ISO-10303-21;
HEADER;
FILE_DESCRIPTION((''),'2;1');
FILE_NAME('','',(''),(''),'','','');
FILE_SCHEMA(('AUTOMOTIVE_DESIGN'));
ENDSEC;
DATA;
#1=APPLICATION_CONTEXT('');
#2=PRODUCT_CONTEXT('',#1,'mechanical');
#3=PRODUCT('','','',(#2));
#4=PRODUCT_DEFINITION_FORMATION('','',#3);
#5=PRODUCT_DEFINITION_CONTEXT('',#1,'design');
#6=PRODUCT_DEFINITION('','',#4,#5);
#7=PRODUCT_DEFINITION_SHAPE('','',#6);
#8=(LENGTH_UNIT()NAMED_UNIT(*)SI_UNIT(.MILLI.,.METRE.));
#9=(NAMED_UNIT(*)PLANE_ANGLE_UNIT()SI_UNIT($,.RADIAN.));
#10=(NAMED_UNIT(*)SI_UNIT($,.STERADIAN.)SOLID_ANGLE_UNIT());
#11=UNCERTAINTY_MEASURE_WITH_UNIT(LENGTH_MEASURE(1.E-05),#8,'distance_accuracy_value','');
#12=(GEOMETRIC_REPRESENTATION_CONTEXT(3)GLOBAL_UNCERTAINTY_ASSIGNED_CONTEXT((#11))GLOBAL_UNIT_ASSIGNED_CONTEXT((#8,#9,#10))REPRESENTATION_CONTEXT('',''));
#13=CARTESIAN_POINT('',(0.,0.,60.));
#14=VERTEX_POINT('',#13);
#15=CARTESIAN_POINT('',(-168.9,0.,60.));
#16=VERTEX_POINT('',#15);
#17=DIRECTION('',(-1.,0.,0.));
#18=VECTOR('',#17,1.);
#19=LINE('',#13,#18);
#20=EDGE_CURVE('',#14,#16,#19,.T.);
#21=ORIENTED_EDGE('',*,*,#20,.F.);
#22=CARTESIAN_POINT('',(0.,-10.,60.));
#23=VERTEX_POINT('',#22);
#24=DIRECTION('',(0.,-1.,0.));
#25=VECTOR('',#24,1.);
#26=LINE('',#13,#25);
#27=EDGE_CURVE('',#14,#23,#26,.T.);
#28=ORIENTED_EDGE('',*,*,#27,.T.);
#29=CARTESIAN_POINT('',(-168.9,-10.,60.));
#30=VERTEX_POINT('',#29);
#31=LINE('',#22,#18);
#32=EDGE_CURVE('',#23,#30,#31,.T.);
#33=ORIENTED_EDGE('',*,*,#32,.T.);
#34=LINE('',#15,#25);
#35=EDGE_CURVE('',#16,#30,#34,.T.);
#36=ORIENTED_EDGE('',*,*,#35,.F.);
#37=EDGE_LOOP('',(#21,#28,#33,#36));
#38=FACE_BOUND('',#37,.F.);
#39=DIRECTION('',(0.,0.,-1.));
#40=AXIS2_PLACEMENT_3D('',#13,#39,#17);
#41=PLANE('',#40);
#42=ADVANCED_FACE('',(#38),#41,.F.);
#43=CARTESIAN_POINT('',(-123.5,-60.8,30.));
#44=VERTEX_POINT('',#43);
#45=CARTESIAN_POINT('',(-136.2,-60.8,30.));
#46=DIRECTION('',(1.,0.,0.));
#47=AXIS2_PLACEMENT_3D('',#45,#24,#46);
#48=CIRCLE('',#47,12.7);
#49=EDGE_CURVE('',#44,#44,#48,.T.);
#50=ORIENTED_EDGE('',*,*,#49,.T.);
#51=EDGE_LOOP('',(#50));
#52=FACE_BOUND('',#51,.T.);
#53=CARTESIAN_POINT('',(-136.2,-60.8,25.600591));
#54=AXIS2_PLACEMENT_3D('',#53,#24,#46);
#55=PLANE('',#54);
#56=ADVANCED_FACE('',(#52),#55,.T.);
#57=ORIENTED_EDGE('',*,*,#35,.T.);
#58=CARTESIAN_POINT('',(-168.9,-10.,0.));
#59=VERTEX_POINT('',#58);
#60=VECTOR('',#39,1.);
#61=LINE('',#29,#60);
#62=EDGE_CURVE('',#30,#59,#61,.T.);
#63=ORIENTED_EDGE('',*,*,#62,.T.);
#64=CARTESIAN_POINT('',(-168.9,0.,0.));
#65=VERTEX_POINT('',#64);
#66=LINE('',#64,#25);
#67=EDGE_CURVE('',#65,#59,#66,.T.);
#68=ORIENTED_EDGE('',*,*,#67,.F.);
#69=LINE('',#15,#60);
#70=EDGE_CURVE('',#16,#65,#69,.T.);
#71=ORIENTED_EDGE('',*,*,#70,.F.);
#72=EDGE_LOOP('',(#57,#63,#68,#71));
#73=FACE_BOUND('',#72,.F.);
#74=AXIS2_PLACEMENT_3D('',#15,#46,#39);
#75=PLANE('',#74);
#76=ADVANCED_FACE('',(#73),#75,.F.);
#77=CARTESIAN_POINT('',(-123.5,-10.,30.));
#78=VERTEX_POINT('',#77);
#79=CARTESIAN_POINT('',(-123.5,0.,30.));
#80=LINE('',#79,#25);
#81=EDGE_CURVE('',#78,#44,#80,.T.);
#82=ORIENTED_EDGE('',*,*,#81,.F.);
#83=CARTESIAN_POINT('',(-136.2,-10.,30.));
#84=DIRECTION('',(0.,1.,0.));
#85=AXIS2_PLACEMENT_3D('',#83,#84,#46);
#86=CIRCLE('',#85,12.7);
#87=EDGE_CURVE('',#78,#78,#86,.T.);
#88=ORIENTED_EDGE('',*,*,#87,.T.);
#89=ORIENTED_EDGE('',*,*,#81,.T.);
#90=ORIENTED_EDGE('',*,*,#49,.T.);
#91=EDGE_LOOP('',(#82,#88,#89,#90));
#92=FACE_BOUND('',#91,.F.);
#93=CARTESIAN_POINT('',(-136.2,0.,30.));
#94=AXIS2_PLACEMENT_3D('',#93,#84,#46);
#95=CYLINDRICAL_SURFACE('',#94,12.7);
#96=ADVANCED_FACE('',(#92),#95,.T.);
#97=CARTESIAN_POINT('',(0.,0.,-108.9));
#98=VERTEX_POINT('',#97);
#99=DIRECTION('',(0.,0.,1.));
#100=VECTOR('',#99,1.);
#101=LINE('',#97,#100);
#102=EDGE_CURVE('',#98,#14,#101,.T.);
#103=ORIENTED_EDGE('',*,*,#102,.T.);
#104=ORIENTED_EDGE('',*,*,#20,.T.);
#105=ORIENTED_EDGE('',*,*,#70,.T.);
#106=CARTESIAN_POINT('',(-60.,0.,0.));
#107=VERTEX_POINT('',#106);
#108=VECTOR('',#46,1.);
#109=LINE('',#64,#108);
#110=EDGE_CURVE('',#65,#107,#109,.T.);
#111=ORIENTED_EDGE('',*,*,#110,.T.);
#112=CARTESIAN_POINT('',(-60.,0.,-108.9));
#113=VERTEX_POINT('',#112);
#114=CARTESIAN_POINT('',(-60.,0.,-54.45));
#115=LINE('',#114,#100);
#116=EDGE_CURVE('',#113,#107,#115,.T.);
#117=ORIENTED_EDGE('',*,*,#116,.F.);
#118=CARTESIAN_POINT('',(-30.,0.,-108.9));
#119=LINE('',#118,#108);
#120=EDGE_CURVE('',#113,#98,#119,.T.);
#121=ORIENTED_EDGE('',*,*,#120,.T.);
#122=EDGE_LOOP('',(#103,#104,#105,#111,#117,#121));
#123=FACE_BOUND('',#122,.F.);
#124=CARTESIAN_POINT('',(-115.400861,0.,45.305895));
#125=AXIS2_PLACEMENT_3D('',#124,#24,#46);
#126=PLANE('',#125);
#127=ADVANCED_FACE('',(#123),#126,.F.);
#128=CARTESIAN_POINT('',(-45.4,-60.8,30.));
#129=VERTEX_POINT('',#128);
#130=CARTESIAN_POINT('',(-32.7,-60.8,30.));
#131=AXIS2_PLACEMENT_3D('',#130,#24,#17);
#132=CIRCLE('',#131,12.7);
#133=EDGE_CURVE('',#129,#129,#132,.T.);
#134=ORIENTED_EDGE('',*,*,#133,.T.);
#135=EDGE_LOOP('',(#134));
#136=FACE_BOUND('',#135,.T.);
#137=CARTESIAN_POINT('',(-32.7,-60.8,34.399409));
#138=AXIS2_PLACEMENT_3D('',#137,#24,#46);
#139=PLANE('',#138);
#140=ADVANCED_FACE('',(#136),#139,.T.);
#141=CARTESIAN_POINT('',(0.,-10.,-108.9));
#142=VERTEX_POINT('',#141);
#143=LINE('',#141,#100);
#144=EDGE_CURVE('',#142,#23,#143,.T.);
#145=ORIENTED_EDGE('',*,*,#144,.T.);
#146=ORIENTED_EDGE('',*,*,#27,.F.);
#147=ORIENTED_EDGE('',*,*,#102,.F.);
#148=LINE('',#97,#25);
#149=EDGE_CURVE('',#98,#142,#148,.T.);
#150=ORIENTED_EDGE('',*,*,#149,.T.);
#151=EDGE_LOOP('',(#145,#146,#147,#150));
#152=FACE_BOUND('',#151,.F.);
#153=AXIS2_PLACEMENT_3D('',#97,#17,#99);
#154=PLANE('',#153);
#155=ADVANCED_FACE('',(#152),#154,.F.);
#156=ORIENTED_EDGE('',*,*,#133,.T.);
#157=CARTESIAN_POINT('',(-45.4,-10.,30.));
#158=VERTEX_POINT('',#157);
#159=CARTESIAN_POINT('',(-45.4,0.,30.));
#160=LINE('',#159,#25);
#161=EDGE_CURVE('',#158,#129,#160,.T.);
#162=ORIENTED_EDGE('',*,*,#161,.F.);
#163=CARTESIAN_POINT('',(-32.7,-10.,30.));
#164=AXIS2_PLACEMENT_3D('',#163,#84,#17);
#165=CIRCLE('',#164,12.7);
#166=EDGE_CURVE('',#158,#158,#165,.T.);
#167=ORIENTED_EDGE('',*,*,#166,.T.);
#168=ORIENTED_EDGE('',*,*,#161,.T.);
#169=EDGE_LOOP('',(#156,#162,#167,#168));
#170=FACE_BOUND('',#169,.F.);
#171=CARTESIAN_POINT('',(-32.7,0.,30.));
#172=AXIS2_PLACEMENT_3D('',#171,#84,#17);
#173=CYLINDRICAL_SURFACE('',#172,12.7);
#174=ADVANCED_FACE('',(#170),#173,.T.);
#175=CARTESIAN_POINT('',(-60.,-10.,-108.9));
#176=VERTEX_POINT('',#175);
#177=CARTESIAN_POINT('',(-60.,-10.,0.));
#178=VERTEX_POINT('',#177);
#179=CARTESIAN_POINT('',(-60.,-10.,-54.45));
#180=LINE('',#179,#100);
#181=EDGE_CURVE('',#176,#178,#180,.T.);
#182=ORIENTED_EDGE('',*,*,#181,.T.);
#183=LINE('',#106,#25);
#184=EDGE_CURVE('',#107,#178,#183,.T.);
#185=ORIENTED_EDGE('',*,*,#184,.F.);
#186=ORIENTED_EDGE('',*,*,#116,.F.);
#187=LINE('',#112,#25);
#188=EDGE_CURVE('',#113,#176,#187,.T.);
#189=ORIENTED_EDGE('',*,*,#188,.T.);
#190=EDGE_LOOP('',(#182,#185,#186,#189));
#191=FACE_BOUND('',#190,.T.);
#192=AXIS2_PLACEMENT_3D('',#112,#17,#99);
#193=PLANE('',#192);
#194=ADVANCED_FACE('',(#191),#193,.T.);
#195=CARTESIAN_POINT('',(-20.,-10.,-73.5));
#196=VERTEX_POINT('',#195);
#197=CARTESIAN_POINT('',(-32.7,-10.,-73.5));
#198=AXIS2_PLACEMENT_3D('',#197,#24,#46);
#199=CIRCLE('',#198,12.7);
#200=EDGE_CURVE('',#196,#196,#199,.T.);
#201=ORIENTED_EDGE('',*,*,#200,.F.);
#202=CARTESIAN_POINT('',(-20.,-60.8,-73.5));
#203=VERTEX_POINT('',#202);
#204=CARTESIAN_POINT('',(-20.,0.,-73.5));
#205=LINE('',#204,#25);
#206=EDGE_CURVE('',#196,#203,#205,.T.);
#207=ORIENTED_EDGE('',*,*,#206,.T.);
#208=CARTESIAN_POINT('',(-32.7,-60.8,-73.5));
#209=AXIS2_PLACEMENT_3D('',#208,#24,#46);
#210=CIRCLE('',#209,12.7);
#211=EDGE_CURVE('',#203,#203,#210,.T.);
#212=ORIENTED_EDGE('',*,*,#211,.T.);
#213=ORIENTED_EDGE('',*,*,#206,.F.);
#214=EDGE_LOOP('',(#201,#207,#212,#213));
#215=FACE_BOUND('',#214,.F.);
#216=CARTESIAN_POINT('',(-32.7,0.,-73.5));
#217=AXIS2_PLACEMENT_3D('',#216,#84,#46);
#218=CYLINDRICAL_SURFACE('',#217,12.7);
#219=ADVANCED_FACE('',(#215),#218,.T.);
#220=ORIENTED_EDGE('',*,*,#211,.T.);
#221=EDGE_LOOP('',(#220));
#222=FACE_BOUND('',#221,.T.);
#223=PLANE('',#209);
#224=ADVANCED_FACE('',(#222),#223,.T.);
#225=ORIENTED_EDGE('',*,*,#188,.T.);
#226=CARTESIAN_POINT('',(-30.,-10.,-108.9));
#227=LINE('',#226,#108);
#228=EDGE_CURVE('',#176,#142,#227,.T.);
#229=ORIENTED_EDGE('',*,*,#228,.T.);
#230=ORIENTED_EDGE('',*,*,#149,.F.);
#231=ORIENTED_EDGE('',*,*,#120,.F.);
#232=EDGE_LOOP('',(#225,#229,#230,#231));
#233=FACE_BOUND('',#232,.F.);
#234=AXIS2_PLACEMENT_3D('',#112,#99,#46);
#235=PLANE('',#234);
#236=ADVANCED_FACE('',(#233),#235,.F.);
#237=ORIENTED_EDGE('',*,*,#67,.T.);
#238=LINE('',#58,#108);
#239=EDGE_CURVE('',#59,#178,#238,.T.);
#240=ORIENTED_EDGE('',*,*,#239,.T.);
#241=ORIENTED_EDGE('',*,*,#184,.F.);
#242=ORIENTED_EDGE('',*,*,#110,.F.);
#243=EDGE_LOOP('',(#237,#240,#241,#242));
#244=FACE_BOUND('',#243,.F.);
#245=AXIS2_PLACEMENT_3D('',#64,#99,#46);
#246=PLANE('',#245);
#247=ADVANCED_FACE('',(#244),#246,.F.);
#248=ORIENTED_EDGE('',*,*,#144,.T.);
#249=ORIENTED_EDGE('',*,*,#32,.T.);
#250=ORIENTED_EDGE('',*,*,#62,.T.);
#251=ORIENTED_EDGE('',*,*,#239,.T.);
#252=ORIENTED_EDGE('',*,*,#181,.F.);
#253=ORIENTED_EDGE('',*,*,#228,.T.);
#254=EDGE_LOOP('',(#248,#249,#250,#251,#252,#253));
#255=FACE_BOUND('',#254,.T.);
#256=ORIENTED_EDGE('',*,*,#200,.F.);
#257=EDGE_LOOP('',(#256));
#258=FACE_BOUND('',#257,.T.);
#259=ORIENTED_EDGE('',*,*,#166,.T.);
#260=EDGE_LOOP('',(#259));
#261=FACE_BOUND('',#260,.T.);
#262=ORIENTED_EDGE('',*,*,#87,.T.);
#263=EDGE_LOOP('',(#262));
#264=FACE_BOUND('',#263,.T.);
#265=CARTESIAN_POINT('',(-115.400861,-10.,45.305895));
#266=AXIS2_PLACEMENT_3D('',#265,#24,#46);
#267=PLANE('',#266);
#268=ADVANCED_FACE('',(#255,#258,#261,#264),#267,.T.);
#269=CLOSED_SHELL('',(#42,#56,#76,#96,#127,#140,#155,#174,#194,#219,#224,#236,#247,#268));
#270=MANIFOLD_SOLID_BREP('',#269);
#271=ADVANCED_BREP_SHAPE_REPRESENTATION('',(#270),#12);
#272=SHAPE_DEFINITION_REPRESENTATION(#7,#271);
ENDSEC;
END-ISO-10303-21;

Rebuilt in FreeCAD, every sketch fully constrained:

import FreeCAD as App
import Part
import Sketcher
from FreeCAD import Vector

doc = App.newDocument("Part")
body = doc.addObject("PartDesign::Body", "Body")

sketch1 = doc.addObject("Sketcher::SketchObject", "Sketch")
body.addObject(sketch1)
sketch1.AttachmentSupport = (doc.XZ_Plane, [""])
sketch1.MapMode = "FlatFace"
sketch1.addGeometry([
    Part.LineSegment(Vector(-168.9, 60, 0), Vector(-168.9, 0, 0)),
    Part.LineSegment(Vector(-168.9, 0, 0), Vector(-60, 0, 0)),
    Part.LineSegment(Vector(-60, 0, 0), Vector(-60, -108.9, 0)),
    Part.LineSegment(Vector(-60, -108.9, 0), Vector(0, -108.9, 0)),
    Part.LineSegment(Vector(0, -108.9, 0), Vector(0, 60, 0)),
    Part.LineSegment(Vector(0, 60, 0), Vector(-168.9, 60, 0)),
    Part.Circle(Vector(-32.7, -73.5, 0), Vector(0, 0, 1), 12.7),
    Part.Circle(Vector(-136.2, 30, 0), Vector(0, 0, 1), 12.7),
    Part.Circle(Vector(-32.7, 30, 0), Vector(0, 0, 1), 12.7),
], False)
sketch1.addConstraint([
    Sketcher.Constraint("Coincident", 0, 2, 1, 1),
    Sketcher.Constraint("Coincident", 1, 2, 2, 1),
    Sketcher.Constraint("Coincident", 2, 2, 3, 1),
    Sketcher.Constraint("Coincident", 3, 2, 4, 1),
    Sketcher.Constraint("Coincident", 4, 2, 5, 1),
    Sketcher.Constraint("Coincident", 5, 2, 0, 1),
    Sketcher.Constraint("Vertical", 0),
    Sketcher.Constraint("Horizontal", 1),
    Sketcher.Constraint("Vertical", 2),
    Sketcher.Constraint("Horizontal", 3),
    Sketcher.Constraint("Vertical", 4),
    Sketcher.Constraint("Horizontal", 5),
    Sketcher.Constraint("Equal", 6, 7),
    Sketcher.Constraint("Equal", 7, 8),
    Sketcher.Constraint("PointOnObject", 0, 2, -1),
    Sketcher.Constraint("PointOnObject", 3, 2, -2),
    Sketcher.Constraint("Horizontal", 7, 3, 8, 3),
    Sketcher.Constraint("Vertical", 6, 3, 8, 3),
    Sketcher.Constraint("Equal", 3, 0),
    Sketcher.Constraint("Equal", 1, 2),
    Sketcher.Constraint("Diameter", 6, 25.4),
    Sketcher.Constraint("DistanceX", 3, 1, 3, 2, 60.0),
    Sketcher.Constraint("DistanceX", 1, 1, 1, 2, 108.9),
    Sketcher.Constraint("DistanceY", -1, 1, 7, 3, 30.0),
    Sketcher.Constraint("DistanceX", 6, 3, -1, 1, 32.7),
    Sketcher.Constraint("DistanceY", 6, 3, -1, 1, 73.5),
    Sketcher.Constraint("DistanceX", 7, 3, -1, 1, 136.2),
])
pad1 = doc.addObject("PartDesign::Pad", "Pad")
body.addObject(pad1)
pad1.Profile = sketch1
pad1.Length = 10

sketch2 = doc.addObject("Sketcher::SketchObject", "Sketch001")
body.addObject(sketch2)
sketch2.AttachmentSupport = (doc.XZ_Plane, [""])
sketch2.MapMode = "FlatFace"
sketch2.addGeometry([
    Part.Circle(Vector(-136.2, 30, 0), Vector(0, 0, 1), 12.7),
    Part.Circle(Vector(-32.7, 30, 0), Vector(0, 0, 1), 12.7),
    Part.Circle(Vector(-32.7, -73.5, 0), Vector(0, 0, 1), 12.7),
], False)
sketch2.addConstraint([
    Sketcher.Constraint("Equal", 0, 1),
    Sketcher.Constraint("Equal", 1, 2),
    Sketcher.Constraint("Horizontal", 0, 3, 1, 3),
    Sketcher.Constraint("Vertical", 1, 3, 2, 3),
    Sketcher.Constraint("Diameter", 0, 25.4),
    Sketcher.Constraint("DistanceY", -1, 1, 0, 3, 30.0),
    Sketcher.Constraint("DistanceX", 0, 3, -1, 1, 136.2),
    Sketcher.Constraint("DistanceX", 1, 3, -1, 1, 32.7),
    Sketcher.Constraint("DistanceY", 2, 3, -1, 1, 73.5),
])
pad2 = doc.addObject("PartDesign::Pad", "Pad001")
body.addObject(pad2)
pad2.Profile = sketch2
pad2.Length = 60.8

doc.recompute()
